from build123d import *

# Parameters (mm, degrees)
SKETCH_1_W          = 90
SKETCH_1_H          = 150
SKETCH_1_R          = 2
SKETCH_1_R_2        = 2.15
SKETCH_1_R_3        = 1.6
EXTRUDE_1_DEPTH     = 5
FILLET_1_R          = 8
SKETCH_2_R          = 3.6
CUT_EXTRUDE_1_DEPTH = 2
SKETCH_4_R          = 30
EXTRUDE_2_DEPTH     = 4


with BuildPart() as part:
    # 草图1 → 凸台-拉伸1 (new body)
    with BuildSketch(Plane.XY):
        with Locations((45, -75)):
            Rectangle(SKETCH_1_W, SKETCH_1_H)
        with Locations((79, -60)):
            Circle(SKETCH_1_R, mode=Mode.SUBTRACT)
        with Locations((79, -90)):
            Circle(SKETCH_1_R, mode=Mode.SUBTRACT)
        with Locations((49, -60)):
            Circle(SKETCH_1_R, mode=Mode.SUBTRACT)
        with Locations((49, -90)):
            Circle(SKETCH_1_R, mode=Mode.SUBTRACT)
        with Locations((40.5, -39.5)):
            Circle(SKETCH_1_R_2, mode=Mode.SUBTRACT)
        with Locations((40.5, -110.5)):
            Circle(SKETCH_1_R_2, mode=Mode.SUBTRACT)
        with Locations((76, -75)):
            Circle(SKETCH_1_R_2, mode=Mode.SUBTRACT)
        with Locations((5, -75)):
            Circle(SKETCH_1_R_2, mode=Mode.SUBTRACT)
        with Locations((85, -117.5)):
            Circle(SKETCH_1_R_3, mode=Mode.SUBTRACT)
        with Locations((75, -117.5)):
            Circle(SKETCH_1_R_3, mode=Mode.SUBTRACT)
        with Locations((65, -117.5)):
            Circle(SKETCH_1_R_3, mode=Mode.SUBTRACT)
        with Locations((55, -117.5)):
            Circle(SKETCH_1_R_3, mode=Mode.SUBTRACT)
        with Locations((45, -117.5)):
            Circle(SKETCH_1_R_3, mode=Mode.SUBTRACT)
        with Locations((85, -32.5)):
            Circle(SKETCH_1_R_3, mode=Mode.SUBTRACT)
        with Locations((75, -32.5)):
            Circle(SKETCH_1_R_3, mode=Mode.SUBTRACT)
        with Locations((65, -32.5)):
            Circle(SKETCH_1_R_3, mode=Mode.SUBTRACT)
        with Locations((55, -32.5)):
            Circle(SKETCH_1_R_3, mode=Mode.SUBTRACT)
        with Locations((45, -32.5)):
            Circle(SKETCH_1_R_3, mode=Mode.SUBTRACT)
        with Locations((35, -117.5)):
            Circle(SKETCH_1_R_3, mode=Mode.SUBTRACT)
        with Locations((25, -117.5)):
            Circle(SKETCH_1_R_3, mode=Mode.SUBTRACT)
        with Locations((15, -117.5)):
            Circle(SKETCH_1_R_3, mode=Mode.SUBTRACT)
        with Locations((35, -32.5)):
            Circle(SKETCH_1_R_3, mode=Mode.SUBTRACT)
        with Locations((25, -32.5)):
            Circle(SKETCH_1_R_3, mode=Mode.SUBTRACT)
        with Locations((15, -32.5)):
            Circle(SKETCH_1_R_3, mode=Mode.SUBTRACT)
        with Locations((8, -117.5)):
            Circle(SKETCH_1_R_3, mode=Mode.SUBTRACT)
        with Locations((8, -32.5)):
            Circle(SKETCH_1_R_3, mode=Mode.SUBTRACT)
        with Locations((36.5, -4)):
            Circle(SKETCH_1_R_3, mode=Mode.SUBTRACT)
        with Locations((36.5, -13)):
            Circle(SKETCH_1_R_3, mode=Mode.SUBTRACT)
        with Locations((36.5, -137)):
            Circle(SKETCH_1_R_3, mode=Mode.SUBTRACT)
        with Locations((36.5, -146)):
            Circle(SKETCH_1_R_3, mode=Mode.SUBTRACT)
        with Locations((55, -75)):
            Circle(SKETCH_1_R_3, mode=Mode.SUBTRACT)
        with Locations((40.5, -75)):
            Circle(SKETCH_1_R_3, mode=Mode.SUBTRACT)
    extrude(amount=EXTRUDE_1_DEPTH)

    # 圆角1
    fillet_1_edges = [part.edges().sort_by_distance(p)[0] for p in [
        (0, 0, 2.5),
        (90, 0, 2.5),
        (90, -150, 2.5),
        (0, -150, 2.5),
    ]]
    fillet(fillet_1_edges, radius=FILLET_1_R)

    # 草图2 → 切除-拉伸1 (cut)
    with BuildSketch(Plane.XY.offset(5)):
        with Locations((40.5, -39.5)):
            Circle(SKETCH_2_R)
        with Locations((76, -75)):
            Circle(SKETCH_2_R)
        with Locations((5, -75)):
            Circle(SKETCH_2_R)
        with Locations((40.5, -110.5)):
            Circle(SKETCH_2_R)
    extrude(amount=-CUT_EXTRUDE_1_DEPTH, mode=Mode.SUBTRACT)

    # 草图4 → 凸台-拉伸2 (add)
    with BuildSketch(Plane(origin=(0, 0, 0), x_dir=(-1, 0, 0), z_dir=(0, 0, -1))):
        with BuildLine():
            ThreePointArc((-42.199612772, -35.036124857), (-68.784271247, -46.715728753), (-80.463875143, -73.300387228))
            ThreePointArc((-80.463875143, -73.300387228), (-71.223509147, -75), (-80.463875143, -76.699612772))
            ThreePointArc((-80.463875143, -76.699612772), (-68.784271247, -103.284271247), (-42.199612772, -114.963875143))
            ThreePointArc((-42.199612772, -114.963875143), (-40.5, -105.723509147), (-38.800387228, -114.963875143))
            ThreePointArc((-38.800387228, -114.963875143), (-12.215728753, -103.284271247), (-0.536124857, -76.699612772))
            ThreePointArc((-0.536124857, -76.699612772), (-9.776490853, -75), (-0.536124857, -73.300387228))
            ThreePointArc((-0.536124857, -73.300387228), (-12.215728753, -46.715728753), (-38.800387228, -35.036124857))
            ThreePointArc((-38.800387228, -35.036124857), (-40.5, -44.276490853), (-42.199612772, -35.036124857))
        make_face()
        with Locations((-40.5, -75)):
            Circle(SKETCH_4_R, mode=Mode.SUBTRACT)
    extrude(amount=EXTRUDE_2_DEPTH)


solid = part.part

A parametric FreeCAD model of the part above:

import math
import FreeCAD as App
import Part
import Sketcher
from FreeCAD import Vector
Q = App.Units.Quantity


def edges_at(feature, points):
    """Names of the edges that pass closest to the given points."""
    edges = feature.Shape.Edges
    near = lambda p: min(range(len(edges)), key=lambda i: edges[i].distToShape(Part.Vertex(*p))[0])
    return sorted({f"Edge{near(p) + 1}" for p in points})


def add_polygon(sketch, points):
    """Adds a closed chain of lines whose ends are joined by coincident constraints."""
    first, n = sketch.GeometryCount, len(points)
    for a, b in zip(points, points[1:] + points[:1]):
        sketch.addGeometry(Part.LineSegment(App.Vector(*a, 0), App.Vector(*b, 0)), False)
    for i in range(n):
        sketch.addConstraint(Sketcher.Constraint("Coincident", first + i, 2, first + (i + 1) % n, 1))

doc = App.newDocument("Part")
body = doc.addObject("PartDesign::Body", "Body")

# Sketch on XY plane
sketch1 = body.newObject("Sketcher::SketchObject", "Sketch")
sketch1.AttachmentSupport = (doc.getObject("XY_Plane"), [""])
sketch1.MapMode = "FlatFace"
add_polygon(sketch1, [(0, 0), (0, -150), (90, -150), (90, 0)])  # lines 0-3
sketch1.addGeometry(Part.Circle(Vector(8, -117.5, 0), Vector(0, 0, 1), 1.6), False)  # 4
sketch1.addGeometry(Part.Circle(Vector(15, -117.5, 0), Vector(0, 0, 1), 1.6), False)  # 5
sketch1.addGeometry(Part.Circle(Vector(36.5, -146, 0), Vector(0, 0, 1), 1.6), False)  # 6
sketch1.addGeometry(Part.Circle(Vector(36.5, -137, 0), Vector(0, 0, 1), 1.6), False)  # 7
sketch1.addGeometry(Part.Circle(Vector(25, -117.5, 0), Vector(0, 0, 1), 1.6), False)  # 8
sketch1.addGeometry(Part.Circle(Vector(35, -117.5, 0), Vector(0, 0, 1), 1.6), False)  # 9
sketch1.addGeometry(Part.Circle(Vector(40.5, -110.5, 0), Vector(0, 0, 1), 2.15), False)  # 10
sketch1.addGeometry(Part.Circle(Vector(45, -117.5, 0), Vector(0, 0, 1), 1.6), False)  # 11
sketch1.addGeometry(Part.Circle(Vector(55, -117.5, 0), Vector(0, 0, 1), 1.6), False)  # 12
sketch1.addGeometry(Part.Circle(Vector(65, -117.5, 0), Vector(0, 0, 1), 1.6), False)  # 13
sketch1.addGeometry(Part.Circle(Vector(75, -117.5, 0), Vector(0, 0, 1), 1.6), False)  # 14
sketch1.addGeometry(Part.Circle(Vector(85, -117.5, 0), Vector(0, 0, 1), 1.6), False)  # 15
sketch1.addGeometry(Part.Circle(Vector(49, -90, 0), Vector(0, 0, 1), 2), False)  # 16
sketch1.addGeometry(Part.Circle(Vector(79, -90, 0), Vector(0, 0, 1), 2), False)  # 17
sketch1.addGeometry(Part.Circle(Vector(5, -75, 0), Vector(0, 0, 1), 2.15), False)  # 18
sketch1.addGeometry(Part.Circle(Vector(40.5, -75, 0), Vector(0, 0, 1), 1.6), False)  # 19
sketch1.addGeometry(Part.Circle(Vector(40.5, -39.5, 0), Vector(0, 0, 1), 2.15), False)  # 20
sketch1.addGeometry(Part.Circle(Vector(8, -32.5, 0), Vector(0, 0, 1), 1.6), False)  # 21
sketch1.addGeometry(Part.Circle(Vector(15, -32.5, 0), Vector(0, 0, 1), 1.6), False)  # 22
sketch1.addGeometry(Part.Circle(Vector(25, -32.5, 0), Vector(0, 0, 1), 1.6), False)  # 23
sketch1.addGeometry(Part.Circle(Vector(35, -32.5, 0), Vector(0, 0, 1), 1.6), False)  # 24
sketch1.addGeometry(Part.Circle(Vector(36.5, -13, 0), Vector(0, 0, 1), 1.6), False)  # 25
sketch1.addGeometry(Part.Circle(Vector(36.5, -4, 0), Vector(0, 0, 1), 1.6), False)  # 26
sketch1.addGeometry(Part.Circle(Vector(55, -75, 0), Vector(0, 0, 1), 1.6), False)  # 27
sketch1.addGeometry(Part.Circle(Vector(49, -60, 0), Vector(0, 0, 1), 2), False)  # 28
sketch1.addGeometry(Part.Circle(Vector(76, -75, 0), Vector(0, 0, 1), 2.15), False)  # 29
sketch1.addGeometry(Part.Circle(Vector(79, -60, 0), Vector(0, 0, 1), 2), False)  # 30
sketch1.addGeometry(Part.Circle(Vector(45, -32.5, 0), Vector(0, 0, 1), 1.6), False)  # 31
sketch1.addGeometry(Part.Circle(Vector(55, -32.5, 0), Vector(0, 0, 1), 1.6), False)  # 32
sketch1.addGeometry(Part.Circle(Vector(65, -32.5, 0), Vector(0, 0, 1), 1.6), False)  # 33
sketch1.addGeometry(Part.Circle(Vector(75, -32.5, 0), Vector(0, 0, 1), 1.6), False)  # 34
sketch1.addGeometry(Part.Circle(Vector(85, -32.5, 0), Vector(0, 0, 1), 1.6), False)  # 35
sketch1.addConstraint([
    Sketcher.Constraint("Vertical", 0),
    Sketcher.Constraint("Horizontal", 1),
    Sketcher.Constraint("Vertical", 2),
    Sketcher.Constraint("Horizontal", 3),
    Sketcher.Constraint("Coincident", 3, 2, -1, 1),
    Sketcher.Constraint("Equal", 4, 5),
    Sketcher.Constraint("Equal", 5, 6),
    Sketcher.Constraint("Equal", 6, 7),
    Sketcher.Constraint("Equal", 7, 8),
    Sketcher.Constraint("Equal", 8, 9),
    Sketcher.Constraint("Equal", 9, 11),
    Sketcher.Constraint("Equal", 11, 12),
    Sketcher.Constraint("Equal", 12, 13),
    Sketcher.Constraint("Equal", 13, 14),
    Sketcher.Constraint("Equal", 14, 15),
    Sketcher.Constraint("Equal", 16, 17),
    Sketcher.Constraint("Equal", 10, 18),
    Sketcher.Constraint("Equal", 15, 19),
    Sketcher.Constraint("Equal", 18, 20),
    Sketcher.Constraint("Equal", 19, 21),
    Sketcher.Constraint("Equal", 21, 22),
    Sketcher.Constraint("Equal", 22, 23),
    Sketcher.Constraint("Equal", 23, 24),
    Sketcher.Constraint("Equal", 24, 25),
    Sketcher.Constraint("Equal", 25, 26),
    Sketcher.Constraint("Equal", 26, 27),
    Sketcher.Constraint("Equal", 17, 28),
    Sketcher.Constraint("Equal", 20, 29),
    Sketcher.Constraint("Equal", 28, 30),
    Sketcher.Constraint("Equal", 27, 31),
    Sketcher.Constraint("Equal", 31, 32),
    Sketcher.Constraint("Equal", 32, 33),
    Sketcher.Constraint("Equal", 33, 34),
    Sketcher.Constraint("Equal", 34, 35),
    Sketcher.Constraint("Horizontal", 4, 3, 5, 3),
    Sketcher.Constraint("Horizontal", 5, 3, 8, 3),
    Sketcher.Constraint("Horizontal", 8, 3, 9, 3),
    Sketcher.Constraint("Horizontal", 9, 3, 11, 3),
    Sketcher.Constraint("Horizontal", 11, 3, 12, 3),
    Sketcher.Constraint("Horizontal", 12, 3, 13, 3),
    Sketcher.Constraint("Horizontal", 13, 3, 14, 3),
    Sketcher.Constraint("Horizontal", 14, 3, 15, 3),
    Sketcher.Constraint("Horizontal", 16, 3, 17, 3),
    Sketcher.Constraint("Horizontal", 18, 3, 19, 3),
    Sketcher.Constraint("Horizontal", 21, 3, 22, 3),
    Sketcher.Constraint("Horizontal", 22, 3, 23, 3),
    Sketcher.Constraint("Horizontal", 23, 3, 24, 3),
    Sketcher.Constraint("Horizontal", 19, 3, 27, 3),
    Sketcher.Constraint("Horizontal", 27, 3, 29, 3),
    Sketcher.Constraint("Horizontal", 28, 3, 30, 3),
    Sketcher.Constraint("Horizontal", 24, 3, 31, 3),
    Sketcher.Constraint("Horizontal", 31, 3, 32, 3),
    Sketcher.Constraint("Horizontal", 32, 3, 33, 3),
    Sketcher.Constraint("Horizontal", 33, 3, 34, 3),
    Sketcher.Constraint("Horizontal", 34, 3, 35, 3),
    Sketcher.Constraint("Vertical", 6, 3, 7, 3),
    Sketcher.Constraint("Vertical", 10, 3, 19, 3),
    Sketcher.Constraint("Vertical", 19, 3, 20, 3),
    Sketcher.Constraint("Vertical", 4, 3, 21, 3),
    Sketcher.Constraint("Vertical", 5, 3, 22, 3),
    Sketcher.Constraint("Vertical", 8, 3, 23, 3),
    Sketcher.Constraint("Vertical", 9, 3, 24, 3),
    Sketcher.Constraint("Vertical", 7, 3, 25, 3),
    Sketcher.Constraint("Vertical", 25, 3, 26, 3),
    Sketcher.Constraint("Vertical", 12, 3, 27, 3),
    Sketcher.Constraint("Vertical", 16, 3, 28, 3),
    Sketcher.Constraint("Vertical", 17, 3, 30, 3),
    Sketcher.Constraint("Vertical", 11, 3, 31, 3),
    Sketcher.Constraint("Vertical", 27, 3, 32, 3),
    Sketcher.Constraint("Vertical", 13, 3, 33, 3),
    Sketcher.Constraint("Vertical", 14, 3, 34, 3),
    Sketcher.Constraint("Vertical", 15, 3, 35, 3),
    Sketcher.Constraint("Diameter", 16, Q("4 mm")),
    Sketcher.Constraint("Diameter", 4, Q("3.2 mm")),
    Sketcher.Constraint("Diameter", 10, Q("4.3 mm")),
    Sketcher.Constraint("DistanceX", 1, 1, 1, 2, Q("90 mm")),
    Sketcher.Constraint("DistanceY", 0, 2, 0, 1, Q("150 mm")),
    Sketcher.Constraint("DistanceX", -1, 1, 4, 3, Q("8 mm")),
    Sketcher.Constraint("DistanceX", -1, 1, 5, 3, Q("15 mm")),
    Sketcher.Constraint("DistanceY", 6, 3, -1, 1, Q("146 mm")),
    Sketcher.Constraint("DistanceY", 7, 3, -1, 1, Q("137 mm")),
    Sketcher.Constraint("DistanceX", -1, 1, 8, 3, Q("25 mm")),
    Sketcher.Constraint("DistanceX", -1, 1, 9, 3, Q("35 mm")),
    Sketcher.Constraint("DistanceX", -1, 1, 11, 3, Q("45 mm")),
    Sketcher.Constraint("DistanceX", -1, 1, 12, 3, Q("55 mm")),
    Sketcher.Constraint("DistanceX", -1, 1, 13, 3, Q("65 mm")),
    Sketcher.Constraint("DistanceX", -1, 1, 14, 3, Q("75 mm")),
    Sketcher.Constraint("DistanceX", -1, 1, 15, 3, Q("85 mm")),
    Sketcher.Constraint("DistanceX", -1, 1, 16, 3, Q("49 mm")),
    Sketcher.Constraint("DistanceY", 16, 3, -1, 1, Q("90 mm")),
    Sketcher.Constraint("DistanceX", -1, 1, 17, 3, Q("79 mm")),
    Sketcher.Constraint("DistanceX", -1, 1, 18, 3, Q("5 mm")),
    Sketcher.Constraint("DistanceY", 18, 3, -1, 1, Q("75 mm")),
    Sketcher.Constraint("DistanceY", 25, 3, -1, 1, Q("13 mm")),
    Sketcher.Constraint("DistanceY", 26, 3, -1, 1, Q("4 mm")),
    Sketcher.Constraint("DistanceY", 28, 3, -1, 1, Q("60 mm")),
    Sketcher.Constraint("DistanceX", -1, 1, 29, 3, Q("76 mm")),
    Sketcher.Constraint("DistanceY", 9, 3, 10, 3, Q("7 mm")),
    Sketcher.Constraint("DistanceX", 7, 3, 10, 3, Q("4 mm")),
    Sketcher.Constraint("DistanceY", 10, 3, 20, 3, Q("71 mm")),
    Sketcher.Constraint("DistanceY", 20, 3, 21, 3, Q("7 mm")),
    Sketcher.Constraint("DistanceY", 4, 3, -1, 1, Q("117.5 mm")),
    Sketcher.Constraint("DistanceX", -1, 1, 6, 3, Q("36.5 mm")),
])
pad1 = body.newObject("PartDesign::Pad", "Pad")
pad1.Profile = sketch1
pad1.Length = 5
doc.recompute()

fillet = body.newObject("PartDesign::Fillet", "Fillet")
fillet.Base = (pad1, edges_at(pad1, [
    (0, 0, 2.5),
    (90, 0, 2.5),
    (90, -150, 2.5),
    (0, -150, 2.5),
]))
fillet.Radius = 8

# Sketch on XY plane
sketch2 = body.newObject("Sketcher::SketchObject", "Sketch001")
sketch2.AttachmentSupport = (doc.getObject("XY_Plane"), [""])
sketch2.MapMode = "FlatFace"
sketch2.AttachmentOffset = App.Placement(Vector(0, 0, 5), App.Rotation())
sketch2.addGeometry([
    Part.Circle(Vector(40.5, -39.5, 0), Vector(0, 0, 1), 3.6),
    Part.Circle(Vector(76, -75, 0), Vector(0, 0, 1), 3.6),
    Part.Circle(Vector(5, -75, 0), Vector(0, 0, 1), 3.6),
    Part.Circle(Vector(40.5, -110.5, 0), Vector(0, 0, 1), 3.6),
], False)
sketch2.addConstraint([
    Sketcher.Constraint("Equal", 0, 1),
    Sketcher.Constraint("Equal", 1, 2),
    Sketcher.Constraint("Equal", 2, 3),
    Sketcher.Constraint("Horizontal", 1, 3, 2, 3),
    Sketcher.Constraint("Vertical", 0, 3, 3, 3),
    Sketcher.Constraint("Diameter", 0, Q("7.2 mm")),
    Sketcher.Constraint("DistanceX", -1, 1, 1, 3, Q("76 mm")),
    Sketcher.Constraint("DistanceY", 1, 3, -1, 1, Q("75 mm")),
    Sketcher.Constraint("DistanceX", -1, 1, 2, 3, Q("5 mm")),
    Sketcher.Constraint("DistanceY", 3, 3, 0, 3, Q("71 mm")),
    Sketcher.Constraint("DistanceX", -1, 1, 0, 3, Q("40.5 mm")),
    Sketcher.Constraint("DistanceY", 0, 3, -1, 1, Q("39.5 mm")),
])
pocket1 = body.newObject("PartDesign::Pocket", "Pocket")
pocket1.Profile = sketch2
pocket1.Length = 2

# Sketch on XY plane
sketch3 = body.newObject("Sketcher::SketchObject", "Sketch002")
sketch3.AttachmentSupport = (doc.getObject("XY_Plane"), [""])
sketch3.MapMode = "FlatFace"
sketch3.addGeometry([
    Part.ArcOfCircle(Part.Circle(Vector(40.5, -75, 0), Vector(0, 0, 1), 40), math.radians(2.435249), math.radians(87.564751)),  # 0
    Part.ArcOfCircle(Part.Circle(Vector(76, -75, 0), Vector(0, 0, 1), 4.776491), math.radians(20.844245), math.radians(339.155755)),  # 1
    Part.ArcOfCircle(Part.Circle(Vector(40.5, -75, 0), Vector(0, 0, 1), 40), math.radians(-87.564751), math.radians(-2.435249)),  # 2
    Part.ArcOfCircle(Part.Circle(Vector(40.5, -110.5, 0), Vector(0, 0, 1), 4.776491), math.radians(-69.155755), math.radians(249.155755)),  # 3
    Part.ArcOfCircle(Part.Circle(Vector(40.5, -75, 0), Vector(0, 0, 1), 40), math.radians(-177.564751), math.radians(-92.435249)),  # 4
    Part.ArcOfCircle(Part.Circle(Vector(5, -75, 0), Vector(0, 0, 1), 4.776491), math.radians(-159.155755), math.radians(159.155755)),  # 5
    Part.ArcOfCircle(Part.Circle(Vector(40.5, -75, 0), Vector(0, 0, 1), 40), math.radians(92.435249), math.radians(177.564751)),  # 6
    Part.ArcOfCircle(Part.Circle(Vector(40.5, -39.5, 0), Vector(0, 0, 1), 4.776491), math.radians(110.844245), math.radians(429.155755)),  # 7
    Part.Circle(Vector(40.5, -75, 0), Vector(0, 0, 1), 30),  # 8
], False)
sketch3.addConstraint([
    Sketcher.Constraint("Coincident", 0, 1, 1, 1),
    Sketcher.Constraint("Coincident", 1, 2, 2, 2),
    Sketcher.Constraint("Coincident", 2, 1, 3, 1),
    Sketcher.Constraint("Coincident", 3, 2, 4, 2),
    Sketcher.Constraint("Coincident", 4, 1, 5, 1),
    Sketcher.Constraint("Coincident", 5, 2, 6, 2),
    Sketcher.Constraint("Coincident", 6, 1, 7, 1),
    Sketcher.Constraint("Coincident", 7, 2, 0, 2),
    Sketcher.Constraint("Coincident", 2, 3, 0, 3),
    Sketcher.Constraint("Coincident", 4, 3, 0, 3),
    Sketcher.Constraint("Coincident", 6, 3, 0, 3),
    Sketcher.Constraint("Coincident", 8, 3, 0, 3),
    Sketcher.Constraint("Equal", 0, 2),
    Sketcher.Constraint("Equal", 1, 3),
    Sketcher.Constraint("Equal", 2, 4),
    Sketcher.Constraint("Equal", 3, 5),
    Sketcher.Constraint("Equal", 4, 6),
    Sketcher.Constraint("Equal", 5, 7),
    Sketcher.Constraint("Horizontal", 0, 3, 1, 3),
    Sketcher.Constraint("Horizontal", 4, 3, 5, 3),
    Sketcher.Constraint("Horizontal", 2, 1, 3, 2),
    Sketcher.Constraint("Horizontal", 1, 2, 4, 1),
    Sketcher.Constraint("Horizontal", 6, 1, 7, 2),
    Sketcher.Constraint("Vertical", 3, 2, 6, 1),
    Sketcher.Constraint("Diameter", 8, Q("60 mm")),
    Sketcher.Constraint("Radius", 0, Q("40 mm")),
    Sketcher.Constraint("DistanceY", 0, 3, -1, 1, Q("75 mm")),
    Sketcher.Constraint("DistanceX", -1, 1, 1, 3, Q("76 mm")),
    Sketcher.Constraint("DistanceX", -1, 1, 5, 3, Q("5 mm")),
    Sketcher.Constraint("DistanceY", 3, 3, -1, 1, Q("110.5 mm")),
    Sketcher.Constraint("Radius", 1, Q("4.776491 mm")),
])
pad2 = body.newObject("PartDesign::Pad", "Pad001")
pad2.Profile = sketch3
pad2.Length = 4
pad2.Reversed = True

doc.recompute()
